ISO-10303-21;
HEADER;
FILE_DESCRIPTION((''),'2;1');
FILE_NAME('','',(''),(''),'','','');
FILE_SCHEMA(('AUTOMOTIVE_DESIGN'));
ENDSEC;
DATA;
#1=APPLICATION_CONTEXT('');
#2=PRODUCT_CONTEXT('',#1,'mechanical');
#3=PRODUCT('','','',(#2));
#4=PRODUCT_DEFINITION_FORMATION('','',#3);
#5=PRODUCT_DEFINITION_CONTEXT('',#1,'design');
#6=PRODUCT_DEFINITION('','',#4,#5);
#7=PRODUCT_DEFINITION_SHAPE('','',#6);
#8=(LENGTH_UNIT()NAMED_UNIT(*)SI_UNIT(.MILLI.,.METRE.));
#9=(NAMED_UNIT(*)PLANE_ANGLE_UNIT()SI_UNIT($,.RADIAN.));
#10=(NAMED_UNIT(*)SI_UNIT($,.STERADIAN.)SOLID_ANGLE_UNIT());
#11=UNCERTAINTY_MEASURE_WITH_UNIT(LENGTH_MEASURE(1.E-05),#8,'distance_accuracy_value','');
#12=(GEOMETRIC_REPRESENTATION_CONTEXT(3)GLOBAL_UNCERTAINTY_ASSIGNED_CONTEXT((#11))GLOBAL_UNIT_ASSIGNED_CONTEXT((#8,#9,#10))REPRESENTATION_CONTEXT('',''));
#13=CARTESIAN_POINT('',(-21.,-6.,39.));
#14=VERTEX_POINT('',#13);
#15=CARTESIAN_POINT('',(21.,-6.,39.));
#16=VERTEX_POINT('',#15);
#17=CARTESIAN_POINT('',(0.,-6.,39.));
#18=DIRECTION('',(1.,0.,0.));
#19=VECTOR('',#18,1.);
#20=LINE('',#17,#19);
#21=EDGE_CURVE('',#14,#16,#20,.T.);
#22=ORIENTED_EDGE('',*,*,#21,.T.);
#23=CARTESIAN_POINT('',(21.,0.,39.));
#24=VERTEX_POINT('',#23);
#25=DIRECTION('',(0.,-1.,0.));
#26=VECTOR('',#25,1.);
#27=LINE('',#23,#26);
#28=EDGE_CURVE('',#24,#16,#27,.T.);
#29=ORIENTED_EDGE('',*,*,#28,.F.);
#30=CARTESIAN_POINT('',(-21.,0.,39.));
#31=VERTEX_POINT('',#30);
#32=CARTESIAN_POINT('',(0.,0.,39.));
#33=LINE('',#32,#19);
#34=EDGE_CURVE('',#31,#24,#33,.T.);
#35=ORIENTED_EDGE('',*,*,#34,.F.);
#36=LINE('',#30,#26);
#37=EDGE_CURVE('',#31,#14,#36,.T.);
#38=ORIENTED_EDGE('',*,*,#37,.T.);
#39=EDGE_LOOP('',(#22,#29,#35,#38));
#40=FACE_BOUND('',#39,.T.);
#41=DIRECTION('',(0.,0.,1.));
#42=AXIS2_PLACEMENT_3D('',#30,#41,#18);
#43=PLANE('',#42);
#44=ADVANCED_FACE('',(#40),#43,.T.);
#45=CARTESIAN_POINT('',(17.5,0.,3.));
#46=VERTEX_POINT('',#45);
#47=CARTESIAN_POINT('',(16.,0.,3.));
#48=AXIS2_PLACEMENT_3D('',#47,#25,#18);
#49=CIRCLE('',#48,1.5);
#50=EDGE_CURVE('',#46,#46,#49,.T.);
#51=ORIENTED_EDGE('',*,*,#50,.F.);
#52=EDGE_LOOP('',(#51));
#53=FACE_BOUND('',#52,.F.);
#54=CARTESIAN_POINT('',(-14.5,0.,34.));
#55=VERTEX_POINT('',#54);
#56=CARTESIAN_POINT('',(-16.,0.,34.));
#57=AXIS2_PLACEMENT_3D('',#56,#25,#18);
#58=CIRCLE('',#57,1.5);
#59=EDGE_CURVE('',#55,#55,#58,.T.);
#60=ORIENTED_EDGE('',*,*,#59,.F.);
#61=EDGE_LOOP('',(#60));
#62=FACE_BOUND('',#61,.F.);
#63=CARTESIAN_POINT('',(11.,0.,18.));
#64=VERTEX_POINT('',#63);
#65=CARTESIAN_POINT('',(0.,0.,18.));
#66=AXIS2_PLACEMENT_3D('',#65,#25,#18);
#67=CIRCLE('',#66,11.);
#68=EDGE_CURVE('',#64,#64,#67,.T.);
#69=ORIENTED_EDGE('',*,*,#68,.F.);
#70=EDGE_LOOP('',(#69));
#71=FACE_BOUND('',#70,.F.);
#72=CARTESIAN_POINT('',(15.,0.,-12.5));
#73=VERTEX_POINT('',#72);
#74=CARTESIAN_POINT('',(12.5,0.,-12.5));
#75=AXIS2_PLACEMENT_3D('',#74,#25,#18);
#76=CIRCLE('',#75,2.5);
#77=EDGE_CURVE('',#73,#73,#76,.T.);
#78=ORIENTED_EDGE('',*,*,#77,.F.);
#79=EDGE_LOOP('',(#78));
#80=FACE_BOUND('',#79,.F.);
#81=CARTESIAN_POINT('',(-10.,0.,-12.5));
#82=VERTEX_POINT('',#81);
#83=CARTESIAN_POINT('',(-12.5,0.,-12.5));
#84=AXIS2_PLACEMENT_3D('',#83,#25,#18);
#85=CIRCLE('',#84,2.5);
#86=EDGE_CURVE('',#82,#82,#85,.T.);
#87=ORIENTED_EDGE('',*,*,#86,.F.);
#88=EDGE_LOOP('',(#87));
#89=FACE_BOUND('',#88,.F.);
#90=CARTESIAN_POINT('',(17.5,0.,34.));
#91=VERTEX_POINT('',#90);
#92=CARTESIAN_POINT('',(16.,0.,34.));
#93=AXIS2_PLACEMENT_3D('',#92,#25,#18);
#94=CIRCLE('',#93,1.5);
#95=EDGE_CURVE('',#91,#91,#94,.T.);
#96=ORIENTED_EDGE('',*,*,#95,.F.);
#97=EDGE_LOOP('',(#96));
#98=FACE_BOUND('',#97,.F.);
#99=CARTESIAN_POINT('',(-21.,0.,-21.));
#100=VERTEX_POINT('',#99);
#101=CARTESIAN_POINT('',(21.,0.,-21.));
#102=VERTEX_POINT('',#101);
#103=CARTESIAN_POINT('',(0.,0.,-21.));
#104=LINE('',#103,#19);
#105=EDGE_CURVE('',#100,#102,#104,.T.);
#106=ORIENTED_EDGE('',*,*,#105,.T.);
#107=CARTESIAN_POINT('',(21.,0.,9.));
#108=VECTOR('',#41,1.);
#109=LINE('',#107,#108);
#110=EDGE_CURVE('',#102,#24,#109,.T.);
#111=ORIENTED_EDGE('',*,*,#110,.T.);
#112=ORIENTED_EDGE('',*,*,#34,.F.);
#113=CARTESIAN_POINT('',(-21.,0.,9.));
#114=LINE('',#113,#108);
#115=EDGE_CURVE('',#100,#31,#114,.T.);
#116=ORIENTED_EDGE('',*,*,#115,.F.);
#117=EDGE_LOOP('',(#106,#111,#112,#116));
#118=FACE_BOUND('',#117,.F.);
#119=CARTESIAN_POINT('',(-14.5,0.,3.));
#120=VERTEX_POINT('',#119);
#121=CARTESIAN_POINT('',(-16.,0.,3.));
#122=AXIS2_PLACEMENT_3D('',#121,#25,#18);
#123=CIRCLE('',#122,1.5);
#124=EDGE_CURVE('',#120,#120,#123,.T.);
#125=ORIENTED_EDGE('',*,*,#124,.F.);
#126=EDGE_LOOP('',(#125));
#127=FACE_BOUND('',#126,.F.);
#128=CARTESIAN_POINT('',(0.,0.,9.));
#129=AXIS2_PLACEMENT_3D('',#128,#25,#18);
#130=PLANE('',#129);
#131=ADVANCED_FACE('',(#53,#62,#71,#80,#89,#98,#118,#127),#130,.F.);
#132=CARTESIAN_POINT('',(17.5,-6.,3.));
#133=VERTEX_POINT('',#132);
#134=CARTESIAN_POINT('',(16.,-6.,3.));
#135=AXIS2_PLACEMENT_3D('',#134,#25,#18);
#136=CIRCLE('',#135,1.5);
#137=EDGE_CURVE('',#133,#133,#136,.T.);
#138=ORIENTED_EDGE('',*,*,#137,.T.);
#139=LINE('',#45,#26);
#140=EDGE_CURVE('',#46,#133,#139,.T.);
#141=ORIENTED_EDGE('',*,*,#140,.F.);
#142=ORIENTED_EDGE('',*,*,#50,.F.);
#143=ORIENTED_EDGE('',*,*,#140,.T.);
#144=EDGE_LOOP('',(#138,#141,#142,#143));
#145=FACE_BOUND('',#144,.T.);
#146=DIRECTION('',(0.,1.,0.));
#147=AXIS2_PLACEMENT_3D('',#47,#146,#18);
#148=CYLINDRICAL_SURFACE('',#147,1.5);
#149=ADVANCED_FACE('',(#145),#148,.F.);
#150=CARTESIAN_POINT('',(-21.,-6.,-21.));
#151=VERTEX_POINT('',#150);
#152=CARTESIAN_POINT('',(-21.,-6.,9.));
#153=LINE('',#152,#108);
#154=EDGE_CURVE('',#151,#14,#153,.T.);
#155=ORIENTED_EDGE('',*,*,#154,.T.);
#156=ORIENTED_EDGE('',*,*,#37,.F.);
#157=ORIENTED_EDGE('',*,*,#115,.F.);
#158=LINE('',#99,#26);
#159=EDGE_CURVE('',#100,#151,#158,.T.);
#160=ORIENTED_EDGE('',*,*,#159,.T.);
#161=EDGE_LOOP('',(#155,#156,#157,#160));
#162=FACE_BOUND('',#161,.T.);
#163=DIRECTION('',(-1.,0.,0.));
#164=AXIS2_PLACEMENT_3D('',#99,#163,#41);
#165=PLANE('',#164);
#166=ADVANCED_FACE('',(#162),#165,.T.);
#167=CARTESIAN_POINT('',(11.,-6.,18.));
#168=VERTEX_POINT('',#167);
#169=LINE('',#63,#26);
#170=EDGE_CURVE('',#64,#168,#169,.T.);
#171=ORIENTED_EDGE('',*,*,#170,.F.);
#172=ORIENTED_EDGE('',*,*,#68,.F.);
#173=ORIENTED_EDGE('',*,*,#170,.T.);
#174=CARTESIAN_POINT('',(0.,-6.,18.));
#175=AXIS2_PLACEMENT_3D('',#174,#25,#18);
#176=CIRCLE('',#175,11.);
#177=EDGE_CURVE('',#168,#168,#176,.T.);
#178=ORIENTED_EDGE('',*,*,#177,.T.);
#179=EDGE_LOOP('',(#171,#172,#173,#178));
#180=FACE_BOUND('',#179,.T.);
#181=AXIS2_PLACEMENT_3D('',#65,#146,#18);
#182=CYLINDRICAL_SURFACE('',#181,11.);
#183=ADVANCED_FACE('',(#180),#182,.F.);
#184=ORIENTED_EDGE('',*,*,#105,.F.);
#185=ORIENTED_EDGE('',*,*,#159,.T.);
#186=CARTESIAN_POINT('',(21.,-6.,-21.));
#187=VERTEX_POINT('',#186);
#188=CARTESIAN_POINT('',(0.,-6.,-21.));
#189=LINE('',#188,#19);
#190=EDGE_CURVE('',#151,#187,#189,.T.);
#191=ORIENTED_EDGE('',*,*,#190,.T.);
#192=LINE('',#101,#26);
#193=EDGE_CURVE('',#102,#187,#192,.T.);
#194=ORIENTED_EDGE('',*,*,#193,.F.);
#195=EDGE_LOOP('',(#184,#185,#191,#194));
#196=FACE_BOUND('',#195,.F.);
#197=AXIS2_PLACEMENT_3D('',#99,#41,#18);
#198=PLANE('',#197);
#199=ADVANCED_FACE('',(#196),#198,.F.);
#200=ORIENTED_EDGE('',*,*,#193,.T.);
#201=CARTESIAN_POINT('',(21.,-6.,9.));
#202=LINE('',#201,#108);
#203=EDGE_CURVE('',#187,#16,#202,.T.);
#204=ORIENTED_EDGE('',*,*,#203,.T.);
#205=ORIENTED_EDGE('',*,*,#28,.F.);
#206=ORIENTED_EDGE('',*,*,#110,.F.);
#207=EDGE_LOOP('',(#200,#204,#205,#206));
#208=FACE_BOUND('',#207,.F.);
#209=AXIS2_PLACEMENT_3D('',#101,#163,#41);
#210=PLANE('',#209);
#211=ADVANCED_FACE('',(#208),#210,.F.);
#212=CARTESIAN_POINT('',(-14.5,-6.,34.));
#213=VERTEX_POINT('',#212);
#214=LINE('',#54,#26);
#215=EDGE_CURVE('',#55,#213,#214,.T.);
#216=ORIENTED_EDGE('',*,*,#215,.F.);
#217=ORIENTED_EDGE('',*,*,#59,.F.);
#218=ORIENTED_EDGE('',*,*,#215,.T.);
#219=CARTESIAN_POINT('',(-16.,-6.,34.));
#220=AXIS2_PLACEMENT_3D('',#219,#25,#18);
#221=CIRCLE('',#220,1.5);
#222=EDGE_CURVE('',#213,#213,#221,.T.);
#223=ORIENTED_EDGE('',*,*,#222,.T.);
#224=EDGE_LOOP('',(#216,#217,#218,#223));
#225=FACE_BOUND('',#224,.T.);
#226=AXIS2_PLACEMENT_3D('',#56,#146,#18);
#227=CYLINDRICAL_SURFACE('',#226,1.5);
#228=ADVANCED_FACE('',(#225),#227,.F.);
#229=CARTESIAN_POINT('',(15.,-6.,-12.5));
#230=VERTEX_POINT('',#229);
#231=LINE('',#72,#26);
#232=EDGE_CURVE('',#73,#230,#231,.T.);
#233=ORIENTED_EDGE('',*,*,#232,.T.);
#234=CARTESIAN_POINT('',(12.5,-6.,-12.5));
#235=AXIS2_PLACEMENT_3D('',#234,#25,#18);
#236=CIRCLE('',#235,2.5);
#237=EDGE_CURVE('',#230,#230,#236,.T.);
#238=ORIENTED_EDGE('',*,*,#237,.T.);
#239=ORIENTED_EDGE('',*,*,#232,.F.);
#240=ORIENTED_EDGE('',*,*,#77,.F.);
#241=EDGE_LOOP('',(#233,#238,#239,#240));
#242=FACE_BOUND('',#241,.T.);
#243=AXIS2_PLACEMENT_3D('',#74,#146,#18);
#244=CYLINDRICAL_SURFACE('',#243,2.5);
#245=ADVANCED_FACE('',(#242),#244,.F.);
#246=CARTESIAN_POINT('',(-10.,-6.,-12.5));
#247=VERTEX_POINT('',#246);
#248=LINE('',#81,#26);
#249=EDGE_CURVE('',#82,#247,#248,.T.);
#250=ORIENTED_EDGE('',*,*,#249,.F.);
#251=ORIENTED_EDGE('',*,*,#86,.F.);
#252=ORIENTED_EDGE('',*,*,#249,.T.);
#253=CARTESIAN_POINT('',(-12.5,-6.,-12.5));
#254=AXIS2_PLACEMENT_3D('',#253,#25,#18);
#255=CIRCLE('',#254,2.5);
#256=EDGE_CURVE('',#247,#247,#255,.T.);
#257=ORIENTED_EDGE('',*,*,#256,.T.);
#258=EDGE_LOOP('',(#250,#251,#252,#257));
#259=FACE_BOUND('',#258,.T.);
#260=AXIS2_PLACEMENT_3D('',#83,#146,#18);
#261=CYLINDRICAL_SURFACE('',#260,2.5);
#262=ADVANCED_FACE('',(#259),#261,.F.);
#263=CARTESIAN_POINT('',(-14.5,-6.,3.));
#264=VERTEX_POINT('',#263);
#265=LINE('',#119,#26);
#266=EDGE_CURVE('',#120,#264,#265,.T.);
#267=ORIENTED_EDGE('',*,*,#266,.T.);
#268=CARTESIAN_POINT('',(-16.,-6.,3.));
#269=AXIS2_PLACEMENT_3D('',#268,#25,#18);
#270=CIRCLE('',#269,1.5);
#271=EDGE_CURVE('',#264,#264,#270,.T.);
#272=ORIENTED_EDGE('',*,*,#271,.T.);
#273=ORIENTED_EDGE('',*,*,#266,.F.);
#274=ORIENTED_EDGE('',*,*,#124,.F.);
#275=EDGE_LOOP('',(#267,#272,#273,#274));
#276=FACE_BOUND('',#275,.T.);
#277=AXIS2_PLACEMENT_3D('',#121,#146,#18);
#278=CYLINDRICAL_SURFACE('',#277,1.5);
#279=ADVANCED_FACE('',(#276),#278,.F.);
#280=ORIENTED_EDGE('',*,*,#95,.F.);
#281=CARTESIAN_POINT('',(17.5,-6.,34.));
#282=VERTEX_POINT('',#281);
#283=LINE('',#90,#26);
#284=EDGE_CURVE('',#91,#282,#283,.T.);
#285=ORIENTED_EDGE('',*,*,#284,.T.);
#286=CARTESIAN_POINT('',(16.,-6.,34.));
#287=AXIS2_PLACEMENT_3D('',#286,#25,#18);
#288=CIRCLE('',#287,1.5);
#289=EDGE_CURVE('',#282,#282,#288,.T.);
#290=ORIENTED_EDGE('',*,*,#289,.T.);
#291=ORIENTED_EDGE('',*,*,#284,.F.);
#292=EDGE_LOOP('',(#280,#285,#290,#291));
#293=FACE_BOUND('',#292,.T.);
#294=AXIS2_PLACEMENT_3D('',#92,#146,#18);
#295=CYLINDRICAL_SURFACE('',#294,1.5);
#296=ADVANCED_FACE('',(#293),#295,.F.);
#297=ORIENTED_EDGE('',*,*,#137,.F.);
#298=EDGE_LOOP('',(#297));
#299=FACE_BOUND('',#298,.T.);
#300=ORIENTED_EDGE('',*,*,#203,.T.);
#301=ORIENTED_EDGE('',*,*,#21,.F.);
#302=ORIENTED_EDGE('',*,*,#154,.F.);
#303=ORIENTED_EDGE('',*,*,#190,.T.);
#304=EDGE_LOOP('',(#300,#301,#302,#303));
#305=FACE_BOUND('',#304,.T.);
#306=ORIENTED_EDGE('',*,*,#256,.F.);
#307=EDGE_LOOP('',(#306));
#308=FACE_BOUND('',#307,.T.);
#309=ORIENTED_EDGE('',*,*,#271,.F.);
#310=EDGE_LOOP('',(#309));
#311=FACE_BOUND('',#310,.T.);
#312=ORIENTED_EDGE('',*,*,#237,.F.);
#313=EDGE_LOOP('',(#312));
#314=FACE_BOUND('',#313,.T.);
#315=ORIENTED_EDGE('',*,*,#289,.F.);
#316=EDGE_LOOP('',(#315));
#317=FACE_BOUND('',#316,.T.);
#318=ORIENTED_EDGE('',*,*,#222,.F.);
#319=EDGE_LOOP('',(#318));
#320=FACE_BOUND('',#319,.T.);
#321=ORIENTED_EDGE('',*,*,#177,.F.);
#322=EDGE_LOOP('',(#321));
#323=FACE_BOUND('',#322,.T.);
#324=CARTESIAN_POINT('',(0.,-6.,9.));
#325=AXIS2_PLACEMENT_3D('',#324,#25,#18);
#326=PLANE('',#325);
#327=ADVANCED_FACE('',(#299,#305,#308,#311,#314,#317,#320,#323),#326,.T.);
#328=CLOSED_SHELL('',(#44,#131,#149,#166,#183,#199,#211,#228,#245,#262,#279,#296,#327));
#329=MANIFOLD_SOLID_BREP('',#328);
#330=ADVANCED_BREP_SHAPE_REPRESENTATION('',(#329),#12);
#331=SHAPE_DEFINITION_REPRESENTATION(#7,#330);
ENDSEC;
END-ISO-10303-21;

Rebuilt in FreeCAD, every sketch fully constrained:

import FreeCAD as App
import Part
import Sketcher

V = App.Vector

doc = App.newDocument("Part")
body = doc.addObject("PartDesign::Body", "Body")

# Sketch on XZ plane
sketch1 = body.newObject("Sketcher::SketchObject", "Sketch")
sketch1.AttachmentSupport = (doc.getObject("XZ_Plane"), [""])
sketch1.MapMode = "FlatFace"
sketch1.addGeometry([
    Part.LineSegment(V(-21, 39, 0), V(-21, -21, 0)),  # 0
    Part.LineSegment(V(-21, -21, 0), V(21, -21, 0)),  # 1
    Part.LineSegment(V(21, -21, 0), V(21, 39, 0)),  # 2
    Part.LineSegment(V(21, 39, 0), V(-21, 39, 0)),  # 3
    Part.Circle(V(-12.5, -12.5, 0), V(0, 0, 1), 2.5),  # 4
    Part.Circle(V(-16, 3, 0), V(0, 0, 1), 1.5),  # 5
    Part.Circle(V(12.5, -12.5, 0), V(0, 0, 1), 2.5),  # 6
    Part.Circle(V(16, 3, 0), V(0, 0, 1), 1.5),  # 7
    Part.Circle(V(-16, 34, 0), V(0, 0, 1), 1.5),  # 8
    Part.Circle(V(0, 18, 0), V(0, 0, 1), 11),  # 9
    Part.Circle(V(16, 34, 0), V(0, 0, 1), 1.5),  # 10
], False)
sketch1.addConstraint([
    Sketcher.Constraint("Coincident", 0, 2, 1, 1),
    Sketcher.Constraint("Coincident", 1, 2, 2, 1),
    Sketcher.Constraint("Coincident", 2, 2, 3, 1),
    Sketcher.Constraint("Coincident", 3, 2, 0, 1),
    Sketcher.Constraint("Vertical", 0),
    Sketcher.Constraint("Horizontal", 1),
    Sketcher.Constraint("Vertical", 2),
    Sketcher.Constraint("Horizontal", 3),
    Sketcher.Constraint("Equal", 4, 6),
    Sketcher.Constraint("Equal", 5, 7),
    Sketcher.Constraint("Equal", 7, 8),
    Sketcher.Constraint("Equal", 8, 10),
    Sketcher.Constraint("Symmetric", 4, 3, 6, 3, -2),
    Sketcher.Constraint("Symmetric", 5, 3, 7, 3, -2),
    Sketcher.Constraint("Symmetric", 8, 3, 10, 3, -2),
    Sketcher.Constraint("PointOnObject", 9, 3, -2),
    Sketcher.Constraint("Vertical", 5, 3, 8, 3),
    Sketcher.Constraint("Diameter", 4, 5.0),
    Sketcher.Constraint("Diameter", 5, 3.0),
    Sketcher.Constraint("Diameter", 9, 22.0),
    Sketcher.Constraint("DistanceX", 1, 1, 1, 2, 42.0),
    Sketcher.Constraint("DistanceY", 0, 2, 0, 1, 60.0),
    Sketcher.Constraint("DistanceX", 5, 3, -1, 1, 16.0),
    Sketcher.Constraint("DistanceY", -1, 1, 5, 3, 3.0),
    Sketcher.Constraint("DistanceY", -1, 1, 8, 3, 34.0),
    Sketcher.Constraint("DistanceY", -1, 1, 9, 3, 18.0),
    Sketcher.Constraint("DistanceX", 0, 2, -1, 1, 21.0),
    Sketcher.Constraint("DistanceY", 0, 2, -1, 1, 21.0),
    Sketcher.Constraint("DistanceX", 4, 3, 6, 3, 25.0),
    Sketcher.Constraint("DistanceY", 4, 3, -1, 1, 12.5),
])
pad1 = body.newObject("PartDesign::Pad", "Pad")
pad1.Profile = sketch1
pad1.Length = 6

doc.recompute()
